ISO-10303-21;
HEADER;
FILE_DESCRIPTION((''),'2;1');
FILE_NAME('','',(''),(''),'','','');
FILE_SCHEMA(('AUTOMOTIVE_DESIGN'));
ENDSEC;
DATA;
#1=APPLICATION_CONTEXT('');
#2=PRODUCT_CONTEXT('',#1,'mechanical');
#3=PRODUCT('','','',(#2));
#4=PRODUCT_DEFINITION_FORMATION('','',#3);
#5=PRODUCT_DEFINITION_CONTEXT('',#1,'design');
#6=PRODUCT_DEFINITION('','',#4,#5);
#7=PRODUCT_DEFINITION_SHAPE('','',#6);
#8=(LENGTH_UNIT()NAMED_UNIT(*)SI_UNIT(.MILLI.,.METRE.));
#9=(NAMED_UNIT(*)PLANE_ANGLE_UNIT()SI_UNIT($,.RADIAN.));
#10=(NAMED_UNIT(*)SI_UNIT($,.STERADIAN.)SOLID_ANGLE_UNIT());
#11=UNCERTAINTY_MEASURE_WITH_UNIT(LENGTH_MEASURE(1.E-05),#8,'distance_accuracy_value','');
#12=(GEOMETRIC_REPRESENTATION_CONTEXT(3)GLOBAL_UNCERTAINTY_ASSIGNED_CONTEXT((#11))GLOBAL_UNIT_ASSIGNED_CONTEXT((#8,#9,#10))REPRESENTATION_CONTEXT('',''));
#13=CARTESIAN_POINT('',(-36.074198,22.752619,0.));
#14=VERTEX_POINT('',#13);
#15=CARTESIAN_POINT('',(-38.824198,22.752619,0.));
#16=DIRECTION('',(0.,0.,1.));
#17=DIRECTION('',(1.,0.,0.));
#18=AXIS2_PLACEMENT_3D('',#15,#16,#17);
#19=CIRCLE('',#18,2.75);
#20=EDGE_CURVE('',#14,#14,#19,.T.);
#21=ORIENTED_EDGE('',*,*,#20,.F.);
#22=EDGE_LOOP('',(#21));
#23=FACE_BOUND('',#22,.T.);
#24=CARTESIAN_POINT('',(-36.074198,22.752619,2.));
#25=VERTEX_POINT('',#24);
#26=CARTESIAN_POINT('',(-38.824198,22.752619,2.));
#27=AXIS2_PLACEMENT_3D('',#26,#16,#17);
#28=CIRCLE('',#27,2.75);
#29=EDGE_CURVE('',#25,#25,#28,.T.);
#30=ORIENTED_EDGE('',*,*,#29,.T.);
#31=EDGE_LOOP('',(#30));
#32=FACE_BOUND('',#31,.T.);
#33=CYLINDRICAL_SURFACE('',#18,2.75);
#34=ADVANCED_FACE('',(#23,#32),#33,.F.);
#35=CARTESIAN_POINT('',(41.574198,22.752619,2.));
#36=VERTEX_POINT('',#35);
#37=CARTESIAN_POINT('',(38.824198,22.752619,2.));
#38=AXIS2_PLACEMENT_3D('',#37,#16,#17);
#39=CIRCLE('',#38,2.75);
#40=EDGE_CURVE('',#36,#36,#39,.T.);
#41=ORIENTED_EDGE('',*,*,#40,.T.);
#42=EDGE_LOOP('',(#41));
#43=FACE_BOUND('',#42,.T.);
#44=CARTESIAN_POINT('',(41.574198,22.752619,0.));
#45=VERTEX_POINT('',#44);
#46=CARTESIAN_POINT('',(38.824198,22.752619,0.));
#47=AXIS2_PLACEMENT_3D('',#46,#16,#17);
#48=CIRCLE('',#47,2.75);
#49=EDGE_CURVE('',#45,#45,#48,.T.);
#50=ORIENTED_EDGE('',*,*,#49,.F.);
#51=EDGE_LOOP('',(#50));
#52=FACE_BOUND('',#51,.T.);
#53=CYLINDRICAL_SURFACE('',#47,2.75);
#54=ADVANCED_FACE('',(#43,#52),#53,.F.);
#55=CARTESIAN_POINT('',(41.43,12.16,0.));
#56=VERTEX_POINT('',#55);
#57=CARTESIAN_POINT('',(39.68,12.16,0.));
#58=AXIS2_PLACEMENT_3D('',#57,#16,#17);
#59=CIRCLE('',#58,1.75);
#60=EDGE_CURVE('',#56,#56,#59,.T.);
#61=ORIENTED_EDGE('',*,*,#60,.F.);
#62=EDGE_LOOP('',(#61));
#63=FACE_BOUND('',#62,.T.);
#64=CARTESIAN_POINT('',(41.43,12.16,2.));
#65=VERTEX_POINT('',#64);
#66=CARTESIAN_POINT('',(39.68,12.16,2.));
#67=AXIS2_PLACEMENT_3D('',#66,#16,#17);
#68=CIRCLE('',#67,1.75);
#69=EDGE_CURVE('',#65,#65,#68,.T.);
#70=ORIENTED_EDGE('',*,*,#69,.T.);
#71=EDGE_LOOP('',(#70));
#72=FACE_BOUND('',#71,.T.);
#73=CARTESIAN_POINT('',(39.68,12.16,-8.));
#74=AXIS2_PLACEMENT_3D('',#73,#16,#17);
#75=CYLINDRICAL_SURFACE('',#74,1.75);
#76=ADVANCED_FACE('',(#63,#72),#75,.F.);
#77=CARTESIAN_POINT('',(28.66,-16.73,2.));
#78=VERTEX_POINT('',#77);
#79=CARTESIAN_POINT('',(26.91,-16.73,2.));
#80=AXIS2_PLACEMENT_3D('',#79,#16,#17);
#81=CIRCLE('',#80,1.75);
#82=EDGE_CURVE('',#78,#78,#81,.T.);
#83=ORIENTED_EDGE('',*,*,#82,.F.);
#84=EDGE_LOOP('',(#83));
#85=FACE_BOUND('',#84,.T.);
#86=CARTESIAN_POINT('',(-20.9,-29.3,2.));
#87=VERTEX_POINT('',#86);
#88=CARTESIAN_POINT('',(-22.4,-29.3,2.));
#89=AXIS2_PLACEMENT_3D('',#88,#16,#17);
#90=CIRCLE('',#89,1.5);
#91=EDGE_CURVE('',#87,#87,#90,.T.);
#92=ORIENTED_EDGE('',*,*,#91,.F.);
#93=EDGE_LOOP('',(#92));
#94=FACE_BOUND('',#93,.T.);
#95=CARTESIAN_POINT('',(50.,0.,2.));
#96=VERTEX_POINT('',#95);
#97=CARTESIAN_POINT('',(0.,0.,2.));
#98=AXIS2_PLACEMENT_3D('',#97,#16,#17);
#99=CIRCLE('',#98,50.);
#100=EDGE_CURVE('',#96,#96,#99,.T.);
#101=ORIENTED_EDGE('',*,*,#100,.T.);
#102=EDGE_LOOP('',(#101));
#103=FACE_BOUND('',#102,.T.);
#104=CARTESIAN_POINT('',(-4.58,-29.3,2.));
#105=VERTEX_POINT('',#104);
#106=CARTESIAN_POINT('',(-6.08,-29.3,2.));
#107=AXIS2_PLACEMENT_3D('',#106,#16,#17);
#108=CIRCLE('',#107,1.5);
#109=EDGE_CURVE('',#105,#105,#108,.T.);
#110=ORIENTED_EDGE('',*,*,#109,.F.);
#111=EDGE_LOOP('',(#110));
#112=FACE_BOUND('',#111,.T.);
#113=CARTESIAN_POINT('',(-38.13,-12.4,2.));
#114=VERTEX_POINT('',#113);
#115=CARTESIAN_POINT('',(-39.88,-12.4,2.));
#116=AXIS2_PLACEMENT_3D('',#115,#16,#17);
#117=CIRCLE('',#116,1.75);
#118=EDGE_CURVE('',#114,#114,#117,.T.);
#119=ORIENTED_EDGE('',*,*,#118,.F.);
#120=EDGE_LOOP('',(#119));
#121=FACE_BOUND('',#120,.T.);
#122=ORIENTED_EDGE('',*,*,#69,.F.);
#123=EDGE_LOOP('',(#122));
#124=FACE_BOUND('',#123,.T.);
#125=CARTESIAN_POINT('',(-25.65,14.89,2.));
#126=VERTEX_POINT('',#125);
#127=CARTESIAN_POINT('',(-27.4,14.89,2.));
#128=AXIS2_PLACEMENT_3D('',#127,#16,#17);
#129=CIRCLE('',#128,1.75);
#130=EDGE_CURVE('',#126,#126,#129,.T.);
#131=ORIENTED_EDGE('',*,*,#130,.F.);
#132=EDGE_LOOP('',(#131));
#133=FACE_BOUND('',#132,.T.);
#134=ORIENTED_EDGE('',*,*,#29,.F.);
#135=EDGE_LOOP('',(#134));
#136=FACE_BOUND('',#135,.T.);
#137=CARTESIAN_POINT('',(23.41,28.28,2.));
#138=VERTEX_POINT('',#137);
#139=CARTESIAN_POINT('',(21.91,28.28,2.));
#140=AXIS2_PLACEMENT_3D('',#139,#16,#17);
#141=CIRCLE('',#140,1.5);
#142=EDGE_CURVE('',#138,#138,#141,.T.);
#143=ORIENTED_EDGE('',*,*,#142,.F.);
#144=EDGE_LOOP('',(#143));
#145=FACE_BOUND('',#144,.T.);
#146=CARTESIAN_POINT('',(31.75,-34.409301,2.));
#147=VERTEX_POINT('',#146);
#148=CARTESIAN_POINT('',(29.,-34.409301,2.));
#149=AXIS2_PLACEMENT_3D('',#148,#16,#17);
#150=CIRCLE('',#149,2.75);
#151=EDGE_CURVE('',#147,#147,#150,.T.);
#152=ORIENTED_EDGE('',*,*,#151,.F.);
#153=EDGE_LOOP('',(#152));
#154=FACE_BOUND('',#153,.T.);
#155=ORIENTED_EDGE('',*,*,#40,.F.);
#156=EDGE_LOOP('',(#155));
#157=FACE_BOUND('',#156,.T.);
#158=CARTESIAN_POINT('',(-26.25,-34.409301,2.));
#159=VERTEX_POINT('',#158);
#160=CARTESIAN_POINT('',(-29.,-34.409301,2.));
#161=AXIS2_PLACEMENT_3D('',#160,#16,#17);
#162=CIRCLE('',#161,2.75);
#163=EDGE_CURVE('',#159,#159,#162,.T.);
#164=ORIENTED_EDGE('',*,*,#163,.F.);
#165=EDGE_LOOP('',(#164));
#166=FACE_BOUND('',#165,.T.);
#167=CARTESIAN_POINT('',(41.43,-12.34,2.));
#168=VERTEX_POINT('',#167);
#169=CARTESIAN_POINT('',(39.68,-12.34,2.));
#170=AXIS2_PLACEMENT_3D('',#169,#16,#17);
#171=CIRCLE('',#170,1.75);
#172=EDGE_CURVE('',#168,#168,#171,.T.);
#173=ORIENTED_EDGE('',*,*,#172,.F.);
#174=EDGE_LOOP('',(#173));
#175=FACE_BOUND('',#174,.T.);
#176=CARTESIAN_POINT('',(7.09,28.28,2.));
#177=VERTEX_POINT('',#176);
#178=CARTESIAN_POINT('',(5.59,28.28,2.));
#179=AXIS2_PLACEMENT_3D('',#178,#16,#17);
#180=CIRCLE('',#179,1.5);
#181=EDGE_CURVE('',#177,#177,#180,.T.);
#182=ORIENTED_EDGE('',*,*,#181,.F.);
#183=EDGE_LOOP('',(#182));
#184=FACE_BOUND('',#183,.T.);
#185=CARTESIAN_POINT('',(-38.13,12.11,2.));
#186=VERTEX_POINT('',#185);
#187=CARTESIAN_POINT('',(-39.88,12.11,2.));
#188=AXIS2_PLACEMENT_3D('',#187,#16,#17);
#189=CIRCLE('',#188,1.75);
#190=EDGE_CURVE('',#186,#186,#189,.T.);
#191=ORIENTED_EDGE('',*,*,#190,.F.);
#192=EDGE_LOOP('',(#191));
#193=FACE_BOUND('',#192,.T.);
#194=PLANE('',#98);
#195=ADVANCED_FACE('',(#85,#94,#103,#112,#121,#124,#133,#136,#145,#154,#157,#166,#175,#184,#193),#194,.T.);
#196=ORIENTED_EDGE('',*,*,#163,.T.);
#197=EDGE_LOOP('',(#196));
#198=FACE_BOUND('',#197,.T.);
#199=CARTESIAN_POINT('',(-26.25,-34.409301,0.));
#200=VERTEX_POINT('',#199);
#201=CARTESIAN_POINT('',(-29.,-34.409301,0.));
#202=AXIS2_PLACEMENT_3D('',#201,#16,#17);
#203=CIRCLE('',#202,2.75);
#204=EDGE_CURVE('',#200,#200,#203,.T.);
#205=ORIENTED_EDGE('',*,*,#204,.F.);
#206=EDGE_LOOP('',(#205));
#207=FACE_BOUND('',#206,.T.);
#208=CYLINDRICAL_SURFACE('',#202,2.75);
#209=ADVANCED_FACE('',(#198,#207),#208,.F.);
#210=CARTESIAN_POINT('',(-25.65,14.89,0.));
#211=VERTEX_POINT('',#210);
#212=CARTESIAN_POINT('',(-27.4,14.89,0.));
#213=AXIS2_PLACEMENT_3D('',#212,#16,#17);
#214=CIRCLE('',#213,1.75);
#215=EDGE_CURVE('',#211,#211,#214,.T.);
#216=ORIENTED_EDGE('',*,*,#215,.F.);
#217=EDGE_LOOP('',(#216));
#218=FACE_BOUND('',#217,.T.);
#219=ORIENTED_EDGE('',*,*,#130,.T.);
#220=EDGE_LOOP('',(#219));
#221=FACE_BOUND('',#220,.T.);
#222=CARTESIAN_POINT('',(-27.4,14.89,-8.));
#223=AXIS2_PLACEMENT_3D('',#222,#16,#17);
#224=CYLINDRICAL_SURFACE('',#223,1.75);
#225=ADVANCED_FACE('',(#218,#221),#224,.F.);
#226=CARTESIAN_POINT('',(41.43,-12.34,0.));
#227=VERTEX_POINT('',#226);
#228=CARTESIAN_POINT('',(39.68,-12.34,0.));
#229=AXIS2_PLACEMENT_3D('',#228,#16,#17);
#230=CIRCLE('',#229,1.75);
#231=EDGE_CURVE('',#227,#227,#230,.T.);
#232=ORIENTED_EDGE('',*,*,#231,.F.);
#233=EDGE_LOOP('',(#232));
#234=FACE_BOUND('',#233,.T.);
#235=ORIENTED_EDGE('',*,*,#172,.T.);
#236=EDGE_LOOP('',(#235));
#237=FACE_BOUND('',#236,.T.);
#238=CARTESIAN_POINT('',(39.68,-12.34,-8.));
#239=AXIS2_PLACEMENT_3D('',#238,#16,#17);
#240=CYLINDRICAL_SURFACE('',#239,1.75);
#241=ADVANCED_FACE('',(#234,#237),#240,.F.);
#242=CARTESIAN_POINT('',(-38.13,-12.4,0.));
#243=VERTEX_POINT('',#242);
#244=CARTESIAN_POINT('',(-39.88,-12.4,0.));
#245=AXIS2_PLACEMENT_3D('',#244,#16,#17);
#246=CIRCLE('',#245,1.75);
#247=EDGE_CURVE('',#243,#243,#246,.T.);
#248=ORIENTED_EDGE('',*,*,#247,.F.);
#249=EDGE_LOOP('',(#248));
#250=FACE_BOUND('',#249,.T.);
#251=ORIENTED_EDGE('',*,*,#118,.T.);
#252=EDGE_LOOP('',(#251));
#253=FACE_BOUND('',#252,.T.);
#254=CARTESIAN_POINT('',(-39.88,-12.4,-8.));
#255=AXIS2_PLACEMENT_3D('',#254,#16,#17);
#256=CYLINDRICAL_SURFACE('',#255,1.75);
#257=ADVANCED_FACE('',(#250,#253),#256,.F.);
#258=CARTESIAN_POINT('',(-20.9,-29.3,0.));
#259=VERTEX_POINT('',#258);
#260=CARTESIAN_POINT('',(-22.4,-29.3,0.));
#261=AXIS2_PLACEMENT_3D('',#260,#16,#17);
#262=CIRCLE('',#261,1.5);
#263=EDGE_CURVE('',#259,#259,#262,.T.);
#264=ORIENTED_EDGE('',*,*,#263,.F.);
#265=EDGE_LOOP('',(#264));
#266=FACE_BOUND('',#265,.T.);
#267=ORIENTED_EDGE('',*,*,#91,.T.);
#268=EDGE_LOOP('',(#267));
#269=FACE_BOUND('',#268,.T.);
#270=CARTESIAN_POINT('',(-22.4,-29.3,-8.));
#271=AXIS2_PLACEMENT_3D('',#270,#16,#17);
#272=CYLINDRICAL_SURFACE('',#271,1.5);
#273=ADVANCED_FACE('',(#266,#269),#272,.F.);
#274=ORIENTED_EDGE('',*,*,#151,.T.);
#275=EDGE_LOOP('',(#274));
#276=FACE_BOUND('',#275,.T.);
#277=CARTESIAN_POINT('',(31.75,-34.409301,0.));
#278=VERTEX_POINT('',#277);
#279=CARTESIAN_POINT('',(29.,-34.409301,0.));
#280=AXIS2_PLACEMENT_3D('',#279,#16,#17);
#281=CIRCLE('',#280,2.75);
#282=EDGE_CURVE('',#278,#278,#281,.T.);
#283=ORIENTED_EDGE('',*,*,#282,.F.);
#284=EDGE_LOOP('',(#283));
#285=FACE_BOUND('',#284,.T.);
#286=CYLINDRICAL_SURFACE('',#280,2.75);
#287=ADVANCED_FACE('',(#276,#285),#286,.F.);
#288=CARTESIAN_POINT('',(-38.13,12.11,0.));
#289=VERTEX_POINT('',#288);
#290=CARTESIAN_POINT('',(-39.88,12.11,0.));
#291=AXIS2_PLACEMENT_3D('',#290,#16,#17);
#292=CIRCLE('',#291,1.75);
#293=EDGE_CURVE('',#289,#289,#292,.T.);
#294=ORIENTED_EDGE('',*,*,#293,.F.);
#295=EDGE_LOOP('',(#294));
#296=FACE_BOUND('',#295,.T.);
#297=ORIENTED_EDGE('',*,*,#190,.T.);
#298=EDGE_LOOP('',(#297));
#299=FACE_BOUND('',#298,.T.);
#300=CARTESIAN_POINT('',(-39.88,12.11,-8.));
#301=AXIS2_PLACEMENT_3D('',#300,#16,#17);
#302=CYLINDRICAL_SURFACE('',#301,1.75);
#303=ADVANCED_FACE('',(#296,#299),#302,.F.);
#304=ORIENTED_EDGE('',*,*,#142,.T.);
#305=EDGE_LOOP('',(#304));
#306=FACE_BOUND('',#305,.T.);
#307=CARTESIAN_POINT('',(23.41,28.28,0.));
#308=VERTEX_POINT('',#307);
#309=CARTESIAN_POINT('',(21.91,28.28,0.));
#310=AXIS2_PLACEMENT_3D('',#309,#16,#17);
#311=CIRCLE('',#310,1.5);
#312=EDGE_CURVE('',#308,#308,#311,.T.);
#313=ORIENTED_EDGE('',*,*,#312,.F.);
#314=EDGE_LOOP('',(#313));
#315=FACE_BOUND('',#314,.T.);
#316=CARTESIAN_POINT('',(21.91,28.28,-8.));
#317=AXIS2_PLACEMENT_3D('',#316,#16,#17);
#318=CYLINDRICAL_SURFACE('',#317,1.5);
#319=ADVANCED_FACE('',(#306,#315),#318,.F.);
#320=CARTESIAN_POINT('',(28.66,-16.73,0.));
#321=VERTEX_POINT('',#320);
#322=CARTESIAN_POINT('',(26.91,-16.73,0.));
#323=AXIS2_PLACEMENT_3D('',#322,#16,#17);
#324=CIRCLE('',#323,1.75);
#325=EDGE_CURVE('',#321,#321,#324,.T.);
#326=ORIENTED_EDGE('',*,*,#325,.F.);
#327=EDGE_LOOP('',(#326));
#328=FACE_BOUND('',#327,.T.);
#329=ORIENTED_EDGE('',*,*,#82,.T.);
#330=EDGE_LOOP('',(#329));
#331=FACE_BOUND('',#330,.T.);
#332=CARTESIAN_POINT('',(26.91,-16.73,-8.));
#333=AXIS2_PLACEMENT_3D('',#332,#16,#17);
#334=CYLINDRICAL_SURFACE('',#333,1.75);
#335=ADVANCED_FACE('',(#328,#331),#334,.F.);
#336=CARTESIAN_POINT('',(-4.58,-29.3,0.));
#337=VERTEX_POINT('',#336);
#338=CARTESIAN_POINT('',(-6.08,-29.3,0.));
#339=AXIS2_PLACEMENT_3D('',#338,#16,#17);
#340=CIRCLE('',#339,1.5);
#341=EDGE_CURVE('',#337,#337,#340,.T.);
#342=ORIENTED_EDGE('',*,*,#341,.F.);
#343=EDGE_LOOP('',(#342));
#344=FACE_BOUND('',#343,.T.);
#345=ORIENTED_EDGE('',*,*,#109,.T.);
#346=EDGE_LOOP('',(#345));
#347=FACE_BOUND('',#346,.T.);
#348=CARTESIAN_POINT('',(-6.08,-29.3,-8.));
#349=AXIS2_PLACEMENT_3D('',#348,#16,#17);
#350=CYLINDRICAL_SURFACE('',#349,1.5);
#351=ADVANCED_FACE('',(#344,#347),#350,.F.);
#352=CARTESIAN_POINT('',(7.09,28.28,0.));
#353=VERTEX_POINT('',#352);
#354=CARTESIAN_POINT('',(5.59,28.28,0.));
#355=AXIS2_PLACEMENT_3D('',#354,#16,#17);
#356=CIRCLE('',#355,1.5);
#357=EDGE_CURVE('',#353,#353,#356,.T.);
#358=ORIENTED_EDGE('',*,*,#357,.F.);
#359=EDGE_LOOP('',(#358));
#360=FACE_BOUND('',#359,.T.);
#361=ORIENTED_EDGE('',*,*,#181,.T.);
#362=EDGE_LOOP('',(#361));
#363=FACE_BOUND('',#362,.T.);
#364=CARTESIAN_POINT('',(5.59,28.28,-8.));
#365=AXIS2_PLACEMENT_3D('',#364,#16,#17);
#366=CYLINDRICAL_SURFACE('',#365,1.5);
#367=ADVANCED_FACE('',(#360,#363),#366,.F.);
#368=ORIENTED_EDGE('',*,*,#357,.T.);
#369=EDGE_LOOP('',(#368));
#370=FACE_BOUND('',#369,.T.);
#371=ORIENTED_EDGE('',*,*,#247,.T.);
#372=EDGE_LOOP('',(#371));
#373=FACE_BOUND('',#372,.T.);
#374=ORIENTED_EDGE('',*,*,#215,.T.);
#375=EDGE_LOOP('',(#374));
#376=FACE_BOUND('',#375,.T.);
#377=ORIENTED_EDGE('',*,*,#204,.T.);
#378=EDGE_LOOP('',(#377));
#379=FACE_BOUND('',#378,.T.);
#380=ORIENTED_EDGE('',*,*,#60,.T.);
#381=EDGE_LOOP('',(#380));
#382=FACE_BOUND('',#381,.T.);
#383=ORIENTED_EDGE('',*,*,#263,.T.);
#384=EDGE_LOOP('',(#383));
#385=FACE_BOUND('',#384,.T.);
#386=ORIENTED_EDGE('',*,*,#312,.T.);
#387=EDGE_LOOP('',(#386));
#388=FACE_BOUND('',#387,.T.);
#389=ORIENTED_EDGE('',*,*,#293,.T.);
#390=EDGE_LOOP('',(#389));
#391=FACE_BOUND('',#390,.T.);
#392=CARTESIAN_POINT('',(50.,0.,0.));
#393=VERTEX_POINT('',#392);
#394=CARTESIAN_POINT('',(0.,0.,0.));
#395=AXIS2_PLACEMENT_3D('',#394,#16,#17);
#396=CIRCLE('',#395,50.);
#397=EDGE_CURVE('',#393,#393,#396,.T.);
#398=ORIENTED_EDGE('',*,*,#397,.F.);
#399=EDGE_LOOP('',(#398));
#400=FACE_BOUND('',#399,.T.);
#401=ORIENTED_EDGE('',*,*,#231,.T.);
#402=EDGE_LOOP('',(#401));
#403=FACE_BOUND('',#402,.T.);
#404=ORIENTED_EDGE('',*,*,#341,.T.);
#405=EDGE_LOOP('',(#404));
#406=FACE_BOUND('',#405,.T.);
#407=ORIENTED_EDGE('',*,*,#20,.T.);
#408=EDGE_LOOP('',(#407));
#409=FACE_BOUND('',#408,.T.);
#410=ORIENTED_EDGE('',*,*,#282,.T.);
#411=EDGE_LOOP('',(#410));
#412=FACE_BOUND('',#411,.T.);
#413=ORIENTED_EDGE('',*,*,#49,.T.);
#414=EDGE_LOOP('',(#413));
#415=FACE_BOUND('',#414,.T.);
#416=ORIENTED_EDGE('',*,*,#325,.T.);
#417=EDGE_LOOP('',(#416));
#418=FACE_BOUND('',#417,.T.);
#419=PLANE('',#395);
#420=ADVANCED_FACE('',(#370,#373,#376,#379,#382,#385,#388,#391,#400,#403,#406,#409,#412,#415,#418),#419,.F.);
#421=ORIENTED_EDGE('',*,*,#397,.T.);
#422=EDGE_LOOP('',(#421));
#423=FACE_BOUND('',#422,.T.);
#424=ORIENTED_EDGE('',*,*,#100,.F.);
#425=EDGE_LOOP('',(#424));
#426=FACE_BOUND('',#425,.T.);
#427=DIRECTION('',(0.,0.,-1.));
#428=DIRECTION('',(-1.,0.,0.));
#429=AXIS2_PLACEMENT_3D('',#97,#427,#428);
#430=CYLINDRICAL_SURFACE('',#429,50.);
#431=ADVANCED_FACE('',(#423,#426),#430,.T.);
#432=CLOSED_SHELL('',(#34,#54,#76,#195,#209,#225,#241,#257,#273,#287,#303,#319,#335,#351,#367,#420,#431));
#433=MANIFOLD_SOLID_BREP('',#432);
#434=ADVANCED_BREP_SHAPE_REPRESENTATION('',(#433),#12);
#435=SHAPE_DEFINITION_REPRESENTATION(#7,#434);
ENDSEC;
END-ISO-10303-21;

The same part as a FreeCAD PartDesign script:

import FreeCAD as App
import Part
import Sketcher

V = App.Vector

doc = App.newDocument("Part")
body = doc.addObject("PartDesign::Body", "Body")

sketch1 = body.newObject("Sketcher::SketchObject", "Sketch")
sketch1.AttachmentSupport = (doc.getObject("XY_Plane"), [""])
sketch1.MapMode = "FlatFace"
sketch1.addGeometry(Part.Circle(V(0, 0, 0), V(0, 0, 1), 50), False)
sketch1.addConstraint(Sketcher.Constraint("Coincident", 0, 3, -1, 1))
sketch1.addConstraint(Sketcher.Constraint("Diameter", 0, 100.0))
pad1 = body.newObject("PartDesign::Pad", "Pad")
pad1.Profile = sketch1
pad1.Length = 2

sketch2 = body.newObject("Sketcher::SketchObject", "Sketch001")
sketch2.AttachmentSupport = (doc.getObject("XY_Plane"), [""])
sketch2.MapMode = "FlatFace"
sketch2.AttachmentOffset = App.Placement(V(0, 0, 2), App.Rotation())
sketch2.addGeometry(Part.Circle(V(-29, -34.409301, 0), V(0, 0, 1), 2.75), False)
sketch2.addGeometry(Part.Circle(V(29, -34.409301, 0), V(0, 0, 1), 2.75), False)
sketch2.addGeometry(Part.Circle(V(-38.824198, 22.752619, 0), V(0, 0, 1), 2.75), False)
sketch2.addGeometry(Part.Circle(V(38.824198, 22.752619, 0), V(0, 0, 1), 2.75), False)
sketch2.addConstraint(Sketcher.Constraint("Equal", 0, 1))
sketch2.addConstraint(Sketcher.Constraint("Equal", 1, 2))
sketch2.addConstraint(Sketcher.Constraint("Equal", 2, 3))
sketch2.addConstraint(Sketcher.Constraint("Symmetric", 0, 3, 1, 3, -2))
sketch2.addConstraint(Sketcher.Constraint("Symmetric", 2, 3, 3, 3, -2))
sketch2.addConstraint(Sketcher.Constraint("Diameter", 0, 5.5))
sketch2.addConstraint(Sketcher.Constraint("DistanceX", 0, 3, -1, 1, 29.0))
sketch2.addConstraint(Sketcher.Constraint("DistanceY", 0, 3, -1, 1, 34.409301))
sketch2.addConstraint(Sketcher.Constraint("DistanceY", -1, 1, 2, 3, 22.752619))
sketch2.addConstraint(Sketcher.Constraint("DistanceX", 2, 3, -1, 1, 38.824198))
pocket1 = body.newObject("PartDesign::Pocket", "Pocket")
pocket1.Profile = sketch2
pocket1.Length = 2

sketch3 = body.newObject("Sketcher::SketchObject", "Sketch002")
sketch3.AttachmentSupport = (doc.getObject("XY_Plane"), [""])
sketch3.MapMode = "FlatFace"
sketch3.AttachmentOffset = App.Placement(V(0, 0, 2), App.Rotation())
sketch3.addGeometry(Part.Circle(V(-27.4, 14.89, 0), V(0, 0, 1), 1.75), False)
sketch3.addGeometry(Part.Circle(V(26.91, -16.73, 0), V(0, 0, 1), 1.75), False)
sketch3.addGeometry(Part.Circle(V(-39.88, -12.4, 0), V(0, 0, 1), 1.75), False)
sketch3.addGeometry(Part.Circle(V(-39.88, 12.11, 0), V(0, 0, 1), 1.75), False)
sketch3.addGeometry(Part.Circle(V(39.68, 12.16, 0), V(0, 0, 1), 1.75), False)
sketch3.addGeometry(Part.Circle(V(39.68, -12.34, 0), V(0, 0, 1), 1.75), False)
sketch3.addGeometry(Part.Circle(V(5.59, 28.28, 0), V(0, 0, 1), 1.5), False)
sketch3.addGeometry(Part.Circle(V(21.91, 28.28, 0), V(0, 0, 1), 1.5), False)
sketch3.addGeometry(Part.Circle(V(-6.08, -29.3, 0), V(0, 0, 1), 1.5), False)
sketch3.addGeometry(Part.Circle(V(-22.4, -29.3, 0), V(0, 0, 1), 1.5), False)
sketch3.addConstraint(Sketcher.Constraint("Equal", 0, 1))
sketch3.addConstraint(Sketcher.Constraint("Equal", 1, 2))
sketch3.addConstraint(Sketcher.Constraint("Equal", 2, 3))
sketch3.addConstraint(Sketcher.Constraint("Equal", 3, 4))
sketch3.addConstraint(Sketcher.Constraint("Equal", 4, 5))
sketch3.addConstraint(Sketcher.Constraint("Equal", 6, 7))
sketch3.addConstraint(Sketcher.Constraint("Equal", 7, 8))
sketch3.addConstraint(Sketcher.Constraint("Equal", 8, 9))
sketch3.addConstraint(Sketcher.Constraint("Horizontal", 6, 3, 7, 3))
sketch3.addConstraint(Sketcher.Constraint("Horizontal", 8, 3, 9, 3))
sketch3.addConstraint(Sketcher.Constraint("Vertical", 2, 3, 3, 3))
sketch3.addConstraint(Sketcher.Constraint("Vertical", 4, 3, 5, 3))
sketch3.addConstraint(Sketcher.Constraint("Diameter", 6, 3.0))
sketch3.addConstraint(Sketcher.Constraint("Diameter", 0, 3.5))
sketch3.addConstraint(Sketcher.Constraint("DistanceX", 7, 3, 1, 3, 5.0))
sketch3.addConstraint(Sketcher.Constraint("DistanceX", 0, 3, 9, 3, 5.0))
sketch3.addConstraint(Sketcher.Constraint("DistanceX", 0, 3, -1, 1, 27.4))
sketch3.addConstraint(Sketcher.Constraint("DistanceY", 2, 3, -1, 1, 12.4))
sketch3.addConstraint(Sketcher.Constraint("DistanceY", 8, 3, -1, 1, 29.3))
sketch3.addConstraint(Sketcher.Constraint("DistanceY", 5, 3, 4, 3, 24.5))
sketch3.addConstraint(Sketcher.Constraint("DistanceX", 2, 3, 8, 3, 33.8))
sketch3.addConstraint(Sketcher.Constraint("DistanceY", -1, 1, 0, 3, 14.89))
sketch3.addConstraint(Sketcher.Constraint("DistanceX", -1, 1, 1, 3, 26.91))
sketch3.addConstraint(Sketcher.Constraint("DistanceY", 1, 3, -1, 1, 16.73))
sketch3.addConstraint(Sketcher.Constraint("DistanceX", 2, 3, -1, 1, 39.88))
sketch3.addConstraint(Sketcher.Constraint("DistanceY", -1, 1, 3, 3, 12.11))
sketch3.addConstraint(Sketcher.Constraint("DistanceX", -1, 1, 4, 3, 39.68))
sketch3.addConstraint(Sketcher.Constraint("DistanceY", -1, 1, 4, 3, 12.16))
sketch3.addConstraint(Sketcher.Constraint("DistanceX", -1, 1, 6, 3, 5.59))
sketch3.addConstraint(Sketcher.Constraint("DistanceY", -1, 1, 6, 3, 28.28))
pocket2 = body.newObject("PartDesign::Pocket", "Pocket001")
pocket2.Profile = sketch3
pocket2.Length = 10

doc.recompute()
